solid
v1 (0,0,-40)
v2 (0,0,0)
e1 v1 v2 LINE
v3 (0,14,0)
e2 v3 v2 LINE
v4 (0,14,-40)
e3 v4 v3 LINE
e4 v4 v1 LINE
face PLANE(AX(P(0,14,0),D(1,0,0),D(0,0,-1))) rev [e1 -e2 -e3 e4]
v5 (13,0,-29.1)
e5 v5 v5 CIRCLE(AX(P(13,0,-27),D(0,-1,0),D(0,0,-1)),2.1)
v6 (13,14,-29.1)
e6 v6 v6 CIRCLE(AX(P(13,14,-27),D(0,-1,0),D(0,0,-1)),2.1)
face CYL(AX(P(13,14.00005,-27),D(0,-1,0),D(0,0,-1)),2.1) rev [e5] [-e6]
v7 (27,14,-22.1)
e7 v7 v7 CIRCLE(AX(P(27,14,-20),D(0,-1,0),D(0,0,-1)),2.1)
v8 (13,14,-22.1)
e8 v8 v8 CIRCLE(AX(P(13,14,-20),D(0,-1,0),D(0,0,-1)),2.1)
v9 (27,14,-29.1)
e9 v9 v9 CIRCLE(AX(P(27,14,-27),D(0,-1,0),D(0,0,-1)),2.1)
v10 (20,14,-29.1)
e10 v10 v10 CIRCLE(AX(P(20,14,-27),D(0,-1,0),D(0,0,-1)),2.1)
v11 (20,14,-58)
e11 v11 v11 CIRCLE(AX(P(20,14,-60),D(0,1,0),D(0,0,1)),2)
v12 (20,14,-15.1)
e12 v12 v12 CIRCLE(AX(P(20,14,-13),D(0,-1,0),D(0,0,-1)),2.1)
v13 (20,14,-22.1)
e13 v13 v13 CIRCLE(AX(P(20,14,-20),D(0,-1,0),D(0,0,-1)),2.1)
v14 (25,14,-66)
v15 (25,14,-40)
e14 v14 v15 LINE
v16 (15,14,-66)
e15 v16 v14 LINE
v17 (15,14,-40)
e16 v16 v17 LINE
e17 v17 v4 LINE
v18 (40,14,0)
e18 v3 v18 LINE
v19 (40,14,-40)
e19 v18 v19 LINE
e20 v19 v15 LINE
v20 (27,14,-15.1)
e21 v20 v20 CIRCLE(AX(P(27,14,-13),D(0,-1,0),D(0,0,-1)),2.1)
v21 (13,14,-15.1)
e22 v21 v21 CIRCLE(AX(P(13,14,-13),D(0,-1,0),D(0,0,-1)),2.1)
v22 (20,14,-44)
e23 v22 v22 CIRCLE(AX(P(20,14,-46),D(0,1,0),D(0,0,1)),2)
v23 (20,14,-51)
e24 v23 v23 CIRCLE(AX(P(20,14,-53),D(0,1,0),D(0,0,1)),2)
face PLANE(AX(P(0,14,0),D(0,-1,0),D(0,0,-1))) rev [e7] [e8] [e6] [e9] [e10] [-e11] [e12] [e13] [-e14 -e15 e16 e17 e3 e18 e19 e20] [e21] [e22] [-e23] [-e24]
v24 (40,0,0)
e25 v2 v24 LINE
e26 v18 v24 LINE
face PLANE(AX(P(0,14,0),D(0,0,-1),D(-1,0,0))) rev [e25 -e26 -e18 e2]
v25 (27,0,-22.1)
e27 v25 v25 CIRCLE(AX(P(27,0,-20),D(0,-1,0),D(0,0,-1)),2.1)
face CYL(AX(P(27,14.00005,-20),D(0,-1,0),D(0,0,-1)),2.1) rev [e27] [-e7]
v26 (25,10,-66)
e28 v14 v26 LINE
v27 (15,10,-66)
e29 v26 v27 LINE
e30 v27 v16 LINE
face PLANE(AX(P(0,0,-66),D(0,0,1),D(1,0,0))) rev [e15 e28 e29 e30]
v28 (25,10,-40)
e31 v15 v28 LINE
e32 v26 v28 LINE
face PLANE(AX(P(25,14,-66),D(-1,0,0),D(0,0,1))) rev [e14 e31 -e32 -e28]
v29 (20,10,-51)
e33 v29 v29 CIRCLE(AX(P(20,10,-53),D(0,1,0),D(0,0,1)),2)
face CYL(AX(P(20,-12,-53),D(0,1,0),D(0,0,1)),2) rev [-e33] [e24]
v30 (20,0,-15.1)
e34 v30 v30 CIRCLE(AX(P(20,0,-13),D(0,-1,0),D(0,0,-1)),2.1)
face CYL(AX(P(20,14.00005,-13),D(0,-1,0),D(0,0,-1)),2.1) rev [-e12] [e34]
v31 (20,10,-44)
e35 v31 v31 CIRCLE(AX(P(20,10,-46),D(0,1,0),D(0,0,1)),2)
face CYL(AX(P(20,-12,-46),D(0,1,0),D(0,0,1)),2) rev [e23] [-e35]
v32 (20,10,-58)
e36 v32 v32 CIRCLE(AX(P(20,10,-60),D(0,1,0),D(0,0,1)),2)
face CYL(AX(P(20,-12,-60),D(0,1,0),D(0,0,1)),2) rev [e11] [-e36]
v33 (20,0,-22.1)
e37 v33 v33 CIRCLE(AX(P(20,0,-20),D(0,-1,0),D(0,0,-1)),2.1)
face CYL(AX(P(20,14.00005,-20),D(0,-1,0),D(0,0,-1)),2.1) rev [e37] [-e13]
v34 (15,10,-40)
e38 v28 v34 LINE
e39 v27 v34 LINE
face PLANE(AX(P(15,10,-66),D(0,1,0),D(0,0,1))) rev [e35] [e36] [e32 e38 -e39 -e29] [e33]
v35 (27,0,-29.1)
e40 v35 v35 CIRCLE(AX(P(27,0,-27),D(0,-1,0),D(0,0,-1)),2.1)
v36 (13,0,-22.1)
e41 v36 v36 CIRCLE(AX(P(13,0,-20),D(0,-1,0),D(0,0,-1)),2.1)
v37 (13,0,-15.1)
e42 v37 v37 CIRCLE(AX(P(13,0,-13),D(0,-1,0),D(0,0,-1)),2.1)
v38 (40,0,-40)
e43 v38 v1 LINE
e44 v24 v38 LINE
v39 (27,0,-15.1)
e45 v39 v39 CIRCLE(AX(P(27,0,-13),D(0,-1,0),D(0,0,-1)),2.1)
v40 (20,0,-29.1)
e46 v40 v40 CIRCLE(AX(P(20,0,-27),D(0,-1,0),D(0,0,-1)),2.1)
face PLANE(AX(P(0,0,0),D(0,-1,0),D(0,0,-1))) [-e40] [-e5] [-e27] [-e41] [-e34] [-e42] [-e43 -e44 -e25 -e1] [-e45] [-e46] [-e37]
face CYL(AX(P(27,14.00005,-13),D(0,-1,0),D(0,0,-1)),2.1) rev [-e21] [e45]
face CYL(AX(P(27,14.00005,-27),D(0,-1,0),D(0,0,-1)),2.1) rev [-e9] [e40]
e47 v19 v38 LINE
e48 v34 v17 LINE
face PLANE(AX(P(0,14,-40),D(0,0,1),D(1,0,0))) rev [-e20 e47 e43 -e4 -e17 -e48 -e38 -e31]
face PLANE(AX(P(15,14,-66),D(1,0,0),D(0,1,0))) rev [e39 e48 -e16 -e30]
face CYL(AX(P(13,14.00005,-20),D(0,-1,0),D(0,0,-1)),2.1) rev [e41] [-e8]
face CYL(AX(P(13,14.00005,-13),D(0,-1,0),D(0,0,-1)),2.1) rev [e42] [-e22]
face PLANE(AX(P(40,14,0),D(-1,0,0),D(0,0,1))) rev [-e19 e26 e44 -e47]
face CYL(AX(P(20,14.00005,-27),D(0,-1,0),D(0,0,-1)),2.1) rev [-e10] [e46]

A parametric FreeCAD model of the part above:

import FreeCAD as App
import Part
import Sketcher
Q = App.Units.Quantity

doc = App.newDocument("Part")
body = doc.addObject("PartDesign::Body", "Body")

sketch1 = body.newObject("Sketcher::SketchObject", "Sketch")
sketch1.AttachmentSupport = (doc.getObject("XZ_Plane"), [""])
sketch1.MapMode = "FlatFace"
sketch1.addGeometry(Part.LineSegment(App.Vector(0, -40, 0), App.Vector(0, 0, 0)), False)
sketch1.addGeometry(Part.LineSegment(App.Vector(0, 0, 0), App.Vector(40, 0, 0)), False)
sketch1.addGeometry(Part.LineSegment(App.Vector(40, 0, 0), App.Vector(40, -40, 0)), False)
sketch1.addGeometry(Part.LineSegment(App.Vector(40, -40, 0), App.Vector(0, -40, 0)), False)
sketch1.addConstraint(Sketcher.Constraint("Coincident", 0, 2, 1, 1))
sketch1.addConstraint(Sketcher.Constraint("Coincident", 1, 2, 2, 1))
sketch1.addConstraint(Sketcher.Constraint("Coincident", 2, 2, 3, 1))
sketch1.addConstraint(Sketcher.Constraint("Coincident", 3, 2, 0, 1))
sketch1.addConstraint(Sketcher.Constraint("Vertical", 0))
sketch1.addConstraint(Sketcher.Constraint("Horizontal", 1))
sketch1.addConstraint(Sketcher.Constraint("Vertical", 2))
sketch1.addConstraint(Sketcher.Constraint("Horizontal", 3))
sketch1.addConstraint(Sketcher.Constraint("Coincident", 0, 2, -1, 1))
sketch1.addConstraint(Sketcher.Constraint("Equal", 3, 0))
sketch1.addConstraint(Sketcher.Constraint("DistanceX", 1, 1, 1, 2, Q("40 mm")))
pad1 = body.newObject("PartDesign::Pad", "Pad")
pad1.Profile = sketch1
pad1.Length = 14
pad1.Reversed = True

sketch2 = body.newObject("Sketcher::SketchObject", "Sketch001")
sketch2.AttachmentSupport = (doc.getObject("XY_Plane"), [""])
sketch2.MapMode = "FlatFace"
sketch2.AttachmentOffset = App.Placement(App.Vector(0, 0, -40), App.Rotation())
sketch2.addGeometry(Part.LineSegment(App.Vector(25, 14, 0), App.Vector(25, 10, 0)), False)
sketch2.addGeometry(Part.LineSegment(App.Vector(25, 10, 0), App.Vector(15, 10, 0)), False)
sketch2.addGeometry(Part.LineSegment(App.Vector(15, 10, 0), App.Vector(15, 14, 0)), False)
sketch2.addGeometry(Part.LineSegment(App.Vector(15, 14, 0), App.Vector(25, 14, 0)), False)
sketch2.addConstraint(Sketcher.Constraint("Coincident", 0, 2, 1, 1))
sketch2.addConstraint(Sketcher.Constraint("Coincident", 1, 2, 2, 1))
sketch2.addConstraint(Sketcher.Constraint("Coincident", 2, 2, 3, 1))
sketch2.addConstraint(Sketcher.Constraint("Coincident", 3, 2, 0, 1))
sketch2.addConstraint(Sketcher.Constraint("Vertical", 0))
sketch2.addConstraint(Sketcher.Constraint("Horizontal", 1))
sketch2.addConstraint(Sketcher.Constraint("Vertical", 2))
sketch2.addConstraint(Sketcher.Constraint("Horizontal", 3))
sketch2.addConstraint(Sketcher.Constraint("DistanceX", 1, 2, 1, 1, Q("10 mm")))
sketch2.addConstraint(Sketcher.Constraint("DistanceY", 0, 2, 0, 1, Q("4 mm")))
sketch2.addConstraint(Sketcher.Constraint("DistanceX", -1, 1, 0, 2, Q("25 mm")))
sketch2.addConstraint(Sketcher.Constraint("DistanceY", -1, 1, 0, 2, Q("10 mm")))
pad2 = body.newObject("PartDesign::Pad", "Pad001")
pad2.Profile = sketch2
pad2.Length = 26
pad2.Reversed = True

sketch3 = body.newObject("Sketcher::SketchObject", "Sketch002")
sketch3.AttachmentSupport = (doc.getObject("XZ_Plane"), [""])
sketch3.MapMode = "FlatFace"
sketch3.AttachmentOffset = App.Placement(App.Vector(0, 0, -14), App.Rotation())
sketch3.addGeometry(Part.Circle(App.Vector(20, -60, 0), App.Vector(0, 0, 1), 2), False)
sketch3.addGeometry(Part.Circle(App.Vector(20, -53, 0), App.Vector(0, 0, 1), 2), False)
sketch3.addGeometry(Part.Circle(App.Vector(20, -46, 0), App.Vector(0, 0, 1), 2), False)
sketch3.addConstraint(Sketcher.Constraint("Equal", 0, 1))
sketch3.addConstraint(Sketcher.Constraint("Equal", 1, 2))
sketch3.addConstraint(Sketcher.Constraint("Vertical", 0, 3, 1, 3))
sketch3.addConstraint(Sketcher.Constraint("Vertical", 1, 3, 2, 3))
sketch3.addConstraint(Sketcher.Constraint("Diameter", 0, Q("4 mm")))
sketch3.addConstraint(Sketcher.Constraint("DistanceX", -1, 1, 0, 3, Q("20 mm")))
sketch3.addConstraint(Sketcher.Constraint("DistanceY", 0, 3, -1, 1, Q("60 mm")))
sketch3.addConstraint(Sketcher.Constraint("DistanceY", 1, 3, -1, 1, Q("53 mm")))
sketch3.addConstraint(Sketcher.Constraint("DistanceY", 2, 3, -1, 1, Q("46 mm")))
pocket1 = body.newObject("PartDesign::Pocket", "Pocket")
pocket1.Profile = sketch3
pocket1.Length = 26
pocket1.Reversed = True

sketch4 = body.newObject("Sketcher::SketchObject", "Sketch003")
sketch4.AttachmentSupport = (doc.getObject("XZ_Plane"), [""])
sketch4.MapMode = "FlatFace"
sketch4.addGeometry(Part.Circle(App.Vector(13, -27, 0), App.Vector(0, 0, 1), 2.1), False)
sketch4.addGeometry(Part.Circle(App.Vector(20, -27, 0), App.Vector(0, 0, 1), 2.1), False)
sketch4.addGeometry(Part.Circle(App.Vector(27, -27, 0), App.Vector(0, 0, 1), 2.1), False)
sketch4.addGeometry(Part.Circle(App.Vector(20, -20, 0), App.Vector(0, 0, 1), 2.1), False)
sketch4.addGeometry(Part.Circle(App.Vector(27, -20, 0), App.Vector(0, 0, 1), 2.1), False)
sketch4.addGeometry(Part.Circle(App.Vector(20, -13, 0), App.Vector(0, 0, 1), 2.1), False)
sketch4.addGeometry(Part.Circle(App.Vector(27, -13, 0), App.Vector(0, 0, 1), 2.1), False)
sketch4.addGeometry(Part.Circle(App.Vector(13, -20, 0), App.Vector(0, 0, 1), 2.1), False)
sketch4.addGeometry(Part.Circle(App.Vector(13, -13, 0), App.Vector(0, 0, 1), 2.1), False)
sketch4.addConstraint(Sketcher.Constraint("Equal", 0, 1))
sketch4.addConstraint(Sketcher.Constraint("Equal", 1, 2))
sketch4.addConstraint(Sketcher.Constraint("Equal", 2, 3))
sketch4.addConstraint(Sketcher.Constraint("Equal", 3, 4))
sketch4.addConstraint(Sketcher.Constraint("Equal", 4, 5))
sketch4.addConstraint(Sketcher.Constraint("Equal", 5, 6))
sketch4.addConstraint(Sketcher.Constraint("Equal", 6, 7))
sketch4.addConstraint(Sketcher.Constraint("Equal", 7, 8))
sketch4.addConstraint(Sketcher.Constraint("Horizontal", 0, 3, 1, 3))
sketch4.addConstraint(Sketcher.Constraint("Horizontal", 1, 3, 2, 3))
sketch4.addConstraint(Sketcher.Constraint("Horizontal", 3, 3, 4, 3))
sketch4.addConstraint(Sketcher.Constraint("Horizontal", 5, 3, 6, 3))
sketch4.addConstraint(Sketcher.Constraint("Horizontal", 4, 3, 7, 3))
sketch4.addConstraint(Sketcher.Constraint("Horizontal", 6, 3, 8, 3))
sketch4.addConstraint(Sketcher.Constraint("Vertical", 1, 3, 3, 3))
sketch4.addConstraint(Sketcher.Constraint("Vertical", 2, 3, 4, 3))
sketch4.addConstraint(Sketcher.Constraint("Vertical", 3, 3, 5, 3))
sketch4.addConstraint(Sketcher.Constraint("Vertical", 4, 3, 6, 3))
sketch4.addConstraint(Sketcher.Constraint("Vertical", 0, 3, 7, 3))
sketch4.addConstraint(Sketcher.Constraint("Vertical", 7, 3, 8, 3))
sketch4.addConstraint(Sketcher.Constraint("Diameter", 0, Q("4.2 mm")))
sketch4.addConstraint(Sketcher.Constraint("DistanceX", -1, 1, 0, 3, Q("13 mm")))
sketch4.addConstraint(Sketcher.Constraint("DistanceY", 0, 3, -1, 1, Q("27 mm")))
sketch4.addConstraint(Sketcher.Constraint("DistanceX", -1, 1, 1, 3, Q("20 mm")))
sketch4.addConstraint(Sketcher.Constraint("DistanceX", -1, 1, 2, 3, Q("27 mm")))
sketch4.addConstraint(Sketcher.Constraint("DistanceY", 3, 3, -1, 1, Q("20 mm")))
sketch4.addConstraint(Sketcher.Constraint("DistanceY", 5, 3, -1, 1, Q("13 mm")))
pocket2 = body.newObject("PartDesign::Pocket", "Pocket001")
pocket2.Profile = sketch4
pocket2.Type = "ThroughAll"

doc.recompute()
